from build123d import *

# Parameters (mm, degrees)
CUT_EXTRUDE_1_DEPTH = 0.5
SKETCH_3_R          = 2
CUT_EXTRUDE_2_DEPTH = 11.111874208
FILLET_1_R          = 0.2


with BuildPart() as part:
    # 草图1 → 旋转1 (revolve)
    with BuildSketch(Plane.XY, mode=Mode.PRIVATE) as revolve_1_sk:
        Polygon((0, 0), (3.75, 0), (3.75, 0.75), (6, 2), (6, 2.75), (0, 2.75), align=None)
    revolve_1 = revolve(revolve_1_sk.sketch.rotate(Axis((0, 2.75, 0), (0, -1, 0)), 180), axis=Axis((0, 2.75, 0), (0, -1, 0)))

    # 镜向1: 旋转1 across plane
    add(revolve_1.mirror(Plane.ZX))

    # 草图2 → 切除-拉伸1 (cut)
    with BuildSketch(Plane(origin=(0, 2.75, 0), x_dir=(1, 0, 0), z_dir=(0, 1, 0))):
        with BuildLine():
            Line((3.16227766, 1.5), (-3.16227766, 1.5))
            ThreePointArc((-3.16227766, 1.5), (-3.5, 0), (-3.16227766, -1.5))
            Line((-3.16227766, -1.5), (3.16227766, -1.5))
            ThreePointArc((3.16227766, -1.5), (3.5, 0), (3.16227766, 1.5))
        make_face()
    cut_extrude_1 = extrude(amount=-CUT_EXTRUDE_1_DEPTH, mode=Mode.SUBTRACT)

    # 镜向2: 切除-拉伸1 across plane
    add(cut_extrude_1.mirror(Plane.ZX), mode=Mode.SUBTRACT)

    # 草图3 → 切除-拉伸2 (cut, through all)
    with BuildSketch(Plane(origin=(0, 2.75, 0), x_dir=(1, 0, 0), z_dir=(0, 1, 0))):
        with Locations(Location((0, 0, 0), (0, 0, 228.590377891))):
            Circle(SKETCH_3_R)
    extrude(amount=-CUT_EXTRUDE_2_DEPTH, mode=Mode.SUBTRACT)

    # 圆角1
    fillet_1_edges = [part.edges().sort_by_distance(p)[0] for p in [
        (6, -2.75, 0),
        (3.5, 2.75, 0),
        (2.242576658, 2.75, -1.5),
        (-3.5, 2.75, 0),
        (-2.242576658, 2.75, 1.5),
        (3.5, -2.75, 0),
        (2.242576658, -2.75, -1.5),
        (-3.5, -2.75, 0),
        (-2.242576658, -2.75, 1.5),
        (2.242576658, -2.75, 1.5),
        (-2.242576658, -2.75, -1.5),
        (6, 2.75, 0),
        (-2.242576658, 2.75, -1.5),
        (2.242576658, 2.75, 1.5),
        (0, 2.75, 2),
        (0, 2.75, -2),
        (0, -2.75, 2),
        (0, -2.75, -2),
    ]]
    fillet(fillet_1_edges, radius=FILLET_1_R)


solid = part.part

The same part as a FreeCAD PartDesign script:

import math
import FreeCAD as App
import Part
import Sketcher
Q = App.Units.Quantity


def edges_at(feature, points):
    """Names of the edges that pass closest to the given points."""
    edges = feature.Shape.Edges
    near = lambda p: min(range(len(edges)), key=lambda i: edges[i].distToShape(Part.Vertex(*p))[0])
    return sorted({f"Edge{near(p) + 1}" for p in points})

doc = App.newDocument("Part")
params = doc.addObject("Spreadsheet::Sheet", "Params")
for row, (alias, value) in enumerate([
    ("sketch1_width", "6 mm"),
    ("sketch1_width2", "3.75 mm"),
    ("sketch1_height", "0.75 mm"),
    ("revolution_angle", "360 deg"),
    ("sketch2_radius", "3.5 mm"),
    ("pocket1_length", "0.5 mm"),
    ("sketch3_diameter", "4 mm"),
    ("fillet_radius", "0.2 mm"),
], start=1):
    params.set(f"A{row}", alias)
    params.set(f"B{row}", "=" + value)
    params.setAlias(f"B{row}", alias)

body = doc.addObject("PartDesign::Body", "Body")

# Sketch on XY plane
sketch1 = body.newObject("Sketcher::SketchObject", "Sketch")
sketch1.AttachmentSupport = (doc.getObject("XY_Plane"), [""])
sketch1.MapMode = "FlatFace"
sketch1.addGeometry([
    Part.LineSegment(App.Vector(0, 0, 0), App.Vector(3.75, 0, 0)),  # 0
    Part.LineSegment(App.Vector(3.75, 0, 0), App.Vector(3.75, 0.75, 0)),  # 1
    Part.LineSegment(App.Vector(3.75, 0.75, 0), App.Vector(6, 2, 0)),  # 2
    Part.LineSegment(App.Vector(6, 2, 0), App.Vector(6, 2.75, 0)),  # 3
    Part.LineSegment(App.Vector(6, 2.75, 0), App.Vector(0, 2.75, 0)),  # 4
    Part.LineSegment(App.Vector(0, 2.75, 0), App.Vector(0, 0, 0)),  # 5
], False)
sketch1.addConstraint([
    Sketcher.Constraint("Coincident", 0, 2, 1, 1),
    Sketcher.Constraint("Coincident", 1, 2, 2, 1),
    Sketcher.Constraint("Coincident", 2, 2, 3, 1),
    Sketcher.Constraint("Coincident", 3, 2, 4, 1),
    Sketcher.Constraint("Coincident", 4, 2, 5, 1),
    Sketcher.Constraint("Coincident", 5, 2, 0, 1),
    Sketcher.Constraint("Horizontal", 0),
    Sketcher.Constraint("Vertical", 1),
    Sketcher.Constraint("Vertical", 3),
    Sketcher.Constraint("Horizontal", 4),
    Sketcher.Constraint("Vertical", 5),
    Sketcher.Constraint("Coincident", 5, 2, -1, 1),
    Sketcher.Constraint("Equal", 1, 3),
    Sketcher.Constraint("DistanceX", 4, 2, 4, 1, Q("6 mm")),
    Sketcher.Constraint("DistanceY", -1, 1, 2, 2, Q("2 mm")),
    Sketcher.Constraint("DistanceX", 0, 1, 0, 2, Q("3.75 mm")),
    Sketcher.Constraint("DistanceY", 1, 1, 1, 2, Q("0.75 mm")),
])
sketch1.setExpression("Constraints[13]", "Params.sketch1_width")
sketch1.setExpression("Constraints[15]", "Params.sketch1_width2")
sketch1.setExpression("Constraints[16]", "Params.sketch1_height")
revolution = body.newObject("PartDesign::Revolution", "Revolution")
revolution.Profile = sketch1
revolution.ReferenceAxis = (sketch1, ["V_Axis"])
revolution.setExpression("Angle", "Params.revolution_angle")
doc.recompute()

mirrored = body.newObject("PartDesign::Mirrored", "Mirrored")
mirrored.Originals = [revolution]
mirrored.MirrorPlane = (doc.getObject("XZ_Plane"), [""])
body.Tip = mirrored

# Sketch on XZ plane
sketch2 = body.newObject("Sketcher::SketchObject", "Sketch001")
sketch2.AttachmentSupport = (doc.getObject("XZ_Plane"), [""])
sketch2.MapMode = "FlatFace"
sketch2.AttachmentOffset = App.Placement(App.Vector(0, 0, -2.75), App.Rotation())
sketch2.addGeometry([
    Part.LineSegment(App.Vector(3.162278, -1.5, 0), App.Vector(-3.162278, -1.5, 0)),
    Part.ArcOfCircle(Part.Circle(App.Vector(0, 0, 0), App.Vector(0, 0, 1), 3.5), math.radians(154.623066), math.radians(205.376934)),
    Part.LineSegment(App.Vector(-3.162278, 1.5, 0), App.Vector(3.162278, 1.5, 0)),
    Part.ArcOfCircle(Part.Circle(App.Vector(0, 0, 0), App.Vector(0, 0, 1), 3.5), math.radians(-25.376934), math.radians(25.376934)),
], False)
sketch2.addConstraint([
    Sketcher.Constraint("Coincident", 0, 2, 1, 2),
    Sketcher.Constraint("Coincident", 1, 1, 2, 1),
    Sketcher.Constraint("Coincident", 2, 2, 3, 2),
    Sketcher.Constraint("Coincident", 3, 1, 0, 1),
    Sketcher.Constraint("Horizontal", 0),
    Sketcher.Constraint("Horizontal", 2),
    Sketcher.Constraint("Coincident", 1, 3, -1, 1),
    Sketcher.Constraint("Coincident", 3, 3, -1, 1),
    Sketcher.Constraint("Equal", 1, 3),
    Sketcher.Constraint("Vertical", 0, 2, 1, 1),
    Sketcher.Constraint("Radius", 1, Q("3.5 mm")),
    Sketcher.Constraint("DistanceY", 0, 2, 1, 1, Q("3 mm")),
])
sketch2.setExpression("Constraints[10]", "Params.sketch2_radius")
pocket1 = body.newObject("PartDesign::Pocket", "Pocket")
pocket1.Profile = sketch2
pocket1.setExpression("Length", "Params.pocket1_length")
pocket1.Reversed = True
doc.recompute()

mirrored2 = body.newObject("PartDesign::Mirrored", "Mirrored001")
mirrored2.Originals = [pocket1]
mirrored2.MirrorPlane = (doc.getObject("XZ_Plane"), [""])
body.Tip = mirrored2

# Sketch on XZ plane
sketch3 = body.newObject("Sketcher::SketchObject", "Sketch002")
sketch3.AttachmentSupport = (doc.getObject("XZ_Plane"), [""])
sketch3.MapMode = "FlatFace"
sketch3.AttachmentOffset = App.Placement(App.Vector(0, 0, -2.75), App.Rotation())
sketch3.addGeometry(Part.Circle(App.Vector(0, 0, 0), App.Vector(0, 0, 1), 2), False)
sketch3.addConstraint([
    Sketcher.Constraint("Coincident", 0, 3, -1, 1),
    Sketcher.Constraint("Diameter", 0, Q("4 mm")),
])
sketch3.setExpression("Constraints[1]", "Params.sketch3_diameter")
pocket2 = body.newObject("PartDesign::Pocket", "Pocket001")
pocket2.Profile = sketch3
pocket2.Type = "ThroughAll"
pocket2.Reversed = True
doc.recompute()

fillet = body.newObject("PartDesign::Fillet", "Fillet")
fillet.Base = (pocket2, edges_at(pocket2, [
    (6, -2.75, 0),
    (3.5, 2.75, 0),
    (2.243, 2.75, -1.5),
    (-3.5, 2.75, 0),
    (-2.243, 2.75, 1.5),
    (3.5, -2.75, 0),
    (2.243, -2.75, -1.5),
    (-3.5, -2.75, 0),
    (-2.243, -2.75, 1.5),
    (2.243, -2.75, 1.5),
    (-2.243, -2.75, -1.5),
    (6, 2.75, 0),
    (-2.243, 2.75, -1.5),
    (2.243, 2.75, 1.5),
    (0, 2.75, 2),
    (0, 2.75, -2),
    (0, -2.75, 2),
    (0, -2.75, -2),
]))
fillet.setExpression("Radius", "Params.fillet_radius")

doc.recompute()
